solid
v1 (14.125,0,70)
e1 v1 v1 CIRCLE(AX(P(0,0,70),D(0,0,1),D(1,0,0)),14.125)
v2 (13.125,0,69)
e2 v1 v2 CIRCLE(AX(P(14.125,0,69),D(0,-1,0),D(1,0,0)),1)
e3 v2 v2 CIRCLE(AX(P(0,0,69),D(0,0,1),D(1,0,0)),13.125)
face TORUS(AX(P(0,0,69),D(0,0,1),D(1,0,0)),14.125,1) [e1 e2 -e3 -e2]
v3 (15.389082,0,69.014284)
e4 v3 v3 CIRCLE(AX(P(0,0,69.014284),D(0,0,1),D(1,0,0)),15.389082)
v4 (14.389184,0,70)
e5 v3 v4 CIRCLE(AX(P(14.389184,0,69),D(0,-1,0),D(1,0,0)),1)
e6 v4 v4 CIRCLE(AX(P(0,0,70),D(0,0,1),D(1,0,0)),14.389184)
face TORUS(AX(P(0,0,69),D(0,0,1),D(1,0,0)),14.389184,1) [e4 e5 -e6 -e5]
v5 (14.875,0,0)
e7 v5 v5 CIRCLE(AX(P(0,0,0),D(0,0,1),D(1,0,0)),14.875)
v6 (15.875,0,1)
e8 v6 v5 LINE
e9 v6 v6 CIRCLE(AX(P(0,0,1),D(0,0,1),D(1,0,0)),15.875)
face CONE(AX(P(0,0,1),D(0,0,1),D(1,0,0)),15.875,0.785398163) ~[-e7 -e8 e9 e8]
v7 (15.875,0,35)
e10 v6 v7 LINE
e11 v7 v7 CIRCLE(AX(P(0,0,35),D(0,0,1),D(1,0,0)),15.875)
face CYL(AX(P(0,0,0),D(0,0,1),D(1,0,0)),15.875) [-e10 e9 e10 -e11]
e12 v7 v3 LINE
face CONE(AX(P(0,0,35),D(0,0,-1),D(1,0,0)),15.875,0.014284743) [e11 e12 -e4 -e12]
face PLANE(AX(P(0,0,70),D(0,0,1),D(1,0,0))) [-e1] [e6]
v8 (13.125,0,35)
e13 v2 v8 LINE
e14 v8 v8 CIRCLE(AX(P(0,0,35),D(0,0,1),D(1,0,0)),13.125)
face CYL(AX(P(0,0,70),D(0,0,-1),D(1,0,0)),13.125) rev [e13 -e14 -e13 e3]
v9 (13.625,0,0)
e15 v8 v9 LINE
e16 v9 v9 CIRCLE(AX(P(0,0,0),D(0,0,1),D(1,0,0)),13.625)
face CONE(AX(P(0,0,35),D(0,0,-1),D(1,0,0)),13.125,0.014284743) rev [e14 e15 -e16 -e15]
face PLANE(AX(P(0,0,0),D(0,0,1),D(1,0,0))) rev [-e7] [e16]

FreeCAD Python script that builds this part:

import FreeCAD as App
import Part
import Sketcher
from FreeCAD import Vector
Q = App.Units.Quantity


def edges_at(feature, points):
    """Names of the edges that pass closest to the given points."""
    edges = feature.Shape.Edges
    near = lambda p: min(range(len(edges)), key=lambda i: edges[i].distToShape(Part.Vertex(*p))[0])
    return sorted({f"Edge{near(p) + 1}" for p in points})

doc = App.newDocument("Part")
body = doc.addObject("PartDesign::Body", "Body")

# Sketch on XZ plane
sketch1 = doc.addObject("Sketcher::SketchObject", "Sketch")
body.addObject(sketch1)
sketch1.AttachmentSupport = (doc.XZ_Plane, [""])
sketch1.MapMode = "FlatFace"
sketch1.addGeometry(Part.LineSegment(Vector(15.9, 0, 0), Vector(15.9, 35, 0)), False)
sketch1.addGeometry(Part.LineSegment(Vector(15.9, 35, 0), Vector(15.4, 70, 0)), False)
sketch1.addGeometry(Part.LineSegment(Vector(15.4, 70, 0), Vector(13.1, 70, 0)), False)
sketch1.addGeometry(Part.LineSegment(Vector(13.1, 70, 0), Vector(13.1, 35, 0)), False)
sketch1.addGeometry(Part.LineSegment(Vector(13.1, 35, 0), Vector(13.6, 0, 0)), False)
sketch1.addGeometry(Part.LineSegment(Vector(13.6, 0, 0), Vector(15.9, 0, 0)), False)
sketch1.addConstraint(Sketcher.Constraint("Coincident", 0, 2, 1, 1))
sketch1.addConstraint(Sketcher.Constraint("Coincident", 1, 2, 2, 1))
sketch1.addConstraint(Sketcher.Constraint("Coincident", 2, 2, 3, 1))
sketch1.addConstraint(Sketcher.Constraint("Coincident", 3, 2, 4, 1))
sketch1.addConstraint(Sketcher.Constraint("Coincident", 4, 2, 5, 1))
sketch1.addConstraint(Sketcher.Constraint("Coincident", 5, 2, 0, 1))
sketch1.addConstraint(Sketcher.Constraint("Vertical", 0))
sketch1.addConstraint(Sketcher.Constraint("Horizontal", 2))
sketch1.addConstraint(Sketcher.Constraint("Vertical", 3))
sketch1.addConstraint(Sketcher.Constraint("Horizontal", 5))
sketch1.addConstraint(Sketcher.Constraint("PointOnObject", 4, 2, -1))
sketch1.addConstraint(Sketcher.Constraint("Parallel", 1, 4))
sketch1.addConstraint(Sketcher.Constraint("Horizontal", 0, 2, 3, 2))
sketch1.addConstraint(Sketcher.Constraint("Equal", 2, 5))
sketch1.addConstraint(Sketcher.Constraint("DistanceY", 0, 1, 0, 2, Q("35 mm")))
sketch1.addConstraint(Sketcher.Constraint("DistanceX", 2, 2, 2, 1, Q("2.25 mm")))
sketch1.addConstraint(Sketcher.Constraint("DistanceX", 1, 2, 0, 2, Q("0.5 mm")))
sketch1.addConstraint(Sketcher.Constraint("DistanceX", -1, 1, 0, 2, Q("15.875 mm")))
revolution = doc.addObject("PartDesign::Revolution", "Revolution")
body.addObject(revolution)
revolution.Profile = sketch1
revolution.ReferenceAxis = (sketch1, ["V_Axis"])
revolution.Angle = 360
doc.recompute()

fillet = doc.addObject("PartDesign::Fillet", "Fillet")
body.addObject(fillet)
fillet.Base = (revolution, edges_at(revolution, [(-15.375, 0, 70), (-13.125, 0, 70)]))
fillet.Radius = 1
doc.recompute()

chamfer = doc.addObject("PartDesign::Chamfer", "Chamfer")
body.addObject(chamfer)
chamfer.Base = (fillet, edges_at(fillet, [(-15.875, 0, 0)]))
chamfer.Size = 1

doc.recompute()
